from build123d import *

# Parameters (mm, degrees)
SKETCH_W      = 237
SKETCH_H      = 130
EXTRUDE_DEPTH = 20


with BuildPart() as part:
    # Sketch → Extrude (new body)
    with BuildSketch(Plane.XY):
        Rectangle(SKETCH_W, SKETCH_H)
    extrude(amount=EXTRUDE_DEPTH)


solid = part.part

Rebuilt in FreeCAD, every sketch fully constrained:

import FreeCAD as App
import Part
import Sketcher
from FreeCAD import Vector

doc = App.newDocument("Part")
params = doc.addObject("Spreadsheet::Sheet", "Params")
for row, (alias, value) in enumerate([
    ("sketch1_width", "237 mm"),
    ("sketch1_height", "130 mm"),
    ("pad1_length", "20 mm"),
], start=1):
    params.set(f"A{row}", alias)
    params.set(f"B{row}", "=" + value)
    params.setAlias(f"B{row}", alias)

body = doc.addObject("PartDesign::Body", "Body")

# Sketch on XY plane
sketch1 = body.newObject("Sketcher::SketchObject", "Sketch")
sketch1.AttachmentSupport = (doc.getObject("XY_Plane"), [""])
sketch1.MapMode = "FlatFace"
sketch1.addGeometry([
    Part.LineSegment(Vector(-118.5, 65, 0), Vector(-118.5, -65, 0)),
    Part.LineSegment(Vector(-118.5, -65, 0), Vector(118.5, -65, 0)),
    Part.LineSegment(Vector(118.5, -65, 0), Vector(118.5, 65, 0)),
    Part.LineSegment(Vector(118.5, 65, 0), Vector(-118.5, 65, 0)),
], False)
sketch1.addConstraint([
    Sketcher.Constraint("Coincident", 0, 2, 1, 1),
    Sketcher.Constraint("Coincident", 1, 2, 2, 1),
    Sketcher.Constraint("Coincident", 2, 2, 3, 1),
    Sketcher.Constraint("Coincident", 3, 2, 0, 1),
    Sketcher.Constraint("Vertical", 0),
    Sketcher.Constraint("Horizontal", 1),
    Sketcher.Constraint("Vertical", 2),
    Sketcher.Constraint("Horizontal", 3),
    Sketcher.Constraint("Symmetric", 0, 2, 2, 2, -1, 1),
    Sketcher.Constraint("DistanceX", 1, 1, 1, 2, 237.0),
    Sketcher.Constraint("DistanceY", 0, 2, 0, 1, 130.0),
])
sketch1.setExpression("Constraints[9]", "Params.sketch1_width")
sketch1.setExpression("Constraints[10]", "Params.sketch1_height")
pad1 = body.newObject("PartDesign::Pad", "Pad")
pad1.Profile = sketch1
pad1.setExpression("Length", "Params.pad1_length")

doc.recompute()
